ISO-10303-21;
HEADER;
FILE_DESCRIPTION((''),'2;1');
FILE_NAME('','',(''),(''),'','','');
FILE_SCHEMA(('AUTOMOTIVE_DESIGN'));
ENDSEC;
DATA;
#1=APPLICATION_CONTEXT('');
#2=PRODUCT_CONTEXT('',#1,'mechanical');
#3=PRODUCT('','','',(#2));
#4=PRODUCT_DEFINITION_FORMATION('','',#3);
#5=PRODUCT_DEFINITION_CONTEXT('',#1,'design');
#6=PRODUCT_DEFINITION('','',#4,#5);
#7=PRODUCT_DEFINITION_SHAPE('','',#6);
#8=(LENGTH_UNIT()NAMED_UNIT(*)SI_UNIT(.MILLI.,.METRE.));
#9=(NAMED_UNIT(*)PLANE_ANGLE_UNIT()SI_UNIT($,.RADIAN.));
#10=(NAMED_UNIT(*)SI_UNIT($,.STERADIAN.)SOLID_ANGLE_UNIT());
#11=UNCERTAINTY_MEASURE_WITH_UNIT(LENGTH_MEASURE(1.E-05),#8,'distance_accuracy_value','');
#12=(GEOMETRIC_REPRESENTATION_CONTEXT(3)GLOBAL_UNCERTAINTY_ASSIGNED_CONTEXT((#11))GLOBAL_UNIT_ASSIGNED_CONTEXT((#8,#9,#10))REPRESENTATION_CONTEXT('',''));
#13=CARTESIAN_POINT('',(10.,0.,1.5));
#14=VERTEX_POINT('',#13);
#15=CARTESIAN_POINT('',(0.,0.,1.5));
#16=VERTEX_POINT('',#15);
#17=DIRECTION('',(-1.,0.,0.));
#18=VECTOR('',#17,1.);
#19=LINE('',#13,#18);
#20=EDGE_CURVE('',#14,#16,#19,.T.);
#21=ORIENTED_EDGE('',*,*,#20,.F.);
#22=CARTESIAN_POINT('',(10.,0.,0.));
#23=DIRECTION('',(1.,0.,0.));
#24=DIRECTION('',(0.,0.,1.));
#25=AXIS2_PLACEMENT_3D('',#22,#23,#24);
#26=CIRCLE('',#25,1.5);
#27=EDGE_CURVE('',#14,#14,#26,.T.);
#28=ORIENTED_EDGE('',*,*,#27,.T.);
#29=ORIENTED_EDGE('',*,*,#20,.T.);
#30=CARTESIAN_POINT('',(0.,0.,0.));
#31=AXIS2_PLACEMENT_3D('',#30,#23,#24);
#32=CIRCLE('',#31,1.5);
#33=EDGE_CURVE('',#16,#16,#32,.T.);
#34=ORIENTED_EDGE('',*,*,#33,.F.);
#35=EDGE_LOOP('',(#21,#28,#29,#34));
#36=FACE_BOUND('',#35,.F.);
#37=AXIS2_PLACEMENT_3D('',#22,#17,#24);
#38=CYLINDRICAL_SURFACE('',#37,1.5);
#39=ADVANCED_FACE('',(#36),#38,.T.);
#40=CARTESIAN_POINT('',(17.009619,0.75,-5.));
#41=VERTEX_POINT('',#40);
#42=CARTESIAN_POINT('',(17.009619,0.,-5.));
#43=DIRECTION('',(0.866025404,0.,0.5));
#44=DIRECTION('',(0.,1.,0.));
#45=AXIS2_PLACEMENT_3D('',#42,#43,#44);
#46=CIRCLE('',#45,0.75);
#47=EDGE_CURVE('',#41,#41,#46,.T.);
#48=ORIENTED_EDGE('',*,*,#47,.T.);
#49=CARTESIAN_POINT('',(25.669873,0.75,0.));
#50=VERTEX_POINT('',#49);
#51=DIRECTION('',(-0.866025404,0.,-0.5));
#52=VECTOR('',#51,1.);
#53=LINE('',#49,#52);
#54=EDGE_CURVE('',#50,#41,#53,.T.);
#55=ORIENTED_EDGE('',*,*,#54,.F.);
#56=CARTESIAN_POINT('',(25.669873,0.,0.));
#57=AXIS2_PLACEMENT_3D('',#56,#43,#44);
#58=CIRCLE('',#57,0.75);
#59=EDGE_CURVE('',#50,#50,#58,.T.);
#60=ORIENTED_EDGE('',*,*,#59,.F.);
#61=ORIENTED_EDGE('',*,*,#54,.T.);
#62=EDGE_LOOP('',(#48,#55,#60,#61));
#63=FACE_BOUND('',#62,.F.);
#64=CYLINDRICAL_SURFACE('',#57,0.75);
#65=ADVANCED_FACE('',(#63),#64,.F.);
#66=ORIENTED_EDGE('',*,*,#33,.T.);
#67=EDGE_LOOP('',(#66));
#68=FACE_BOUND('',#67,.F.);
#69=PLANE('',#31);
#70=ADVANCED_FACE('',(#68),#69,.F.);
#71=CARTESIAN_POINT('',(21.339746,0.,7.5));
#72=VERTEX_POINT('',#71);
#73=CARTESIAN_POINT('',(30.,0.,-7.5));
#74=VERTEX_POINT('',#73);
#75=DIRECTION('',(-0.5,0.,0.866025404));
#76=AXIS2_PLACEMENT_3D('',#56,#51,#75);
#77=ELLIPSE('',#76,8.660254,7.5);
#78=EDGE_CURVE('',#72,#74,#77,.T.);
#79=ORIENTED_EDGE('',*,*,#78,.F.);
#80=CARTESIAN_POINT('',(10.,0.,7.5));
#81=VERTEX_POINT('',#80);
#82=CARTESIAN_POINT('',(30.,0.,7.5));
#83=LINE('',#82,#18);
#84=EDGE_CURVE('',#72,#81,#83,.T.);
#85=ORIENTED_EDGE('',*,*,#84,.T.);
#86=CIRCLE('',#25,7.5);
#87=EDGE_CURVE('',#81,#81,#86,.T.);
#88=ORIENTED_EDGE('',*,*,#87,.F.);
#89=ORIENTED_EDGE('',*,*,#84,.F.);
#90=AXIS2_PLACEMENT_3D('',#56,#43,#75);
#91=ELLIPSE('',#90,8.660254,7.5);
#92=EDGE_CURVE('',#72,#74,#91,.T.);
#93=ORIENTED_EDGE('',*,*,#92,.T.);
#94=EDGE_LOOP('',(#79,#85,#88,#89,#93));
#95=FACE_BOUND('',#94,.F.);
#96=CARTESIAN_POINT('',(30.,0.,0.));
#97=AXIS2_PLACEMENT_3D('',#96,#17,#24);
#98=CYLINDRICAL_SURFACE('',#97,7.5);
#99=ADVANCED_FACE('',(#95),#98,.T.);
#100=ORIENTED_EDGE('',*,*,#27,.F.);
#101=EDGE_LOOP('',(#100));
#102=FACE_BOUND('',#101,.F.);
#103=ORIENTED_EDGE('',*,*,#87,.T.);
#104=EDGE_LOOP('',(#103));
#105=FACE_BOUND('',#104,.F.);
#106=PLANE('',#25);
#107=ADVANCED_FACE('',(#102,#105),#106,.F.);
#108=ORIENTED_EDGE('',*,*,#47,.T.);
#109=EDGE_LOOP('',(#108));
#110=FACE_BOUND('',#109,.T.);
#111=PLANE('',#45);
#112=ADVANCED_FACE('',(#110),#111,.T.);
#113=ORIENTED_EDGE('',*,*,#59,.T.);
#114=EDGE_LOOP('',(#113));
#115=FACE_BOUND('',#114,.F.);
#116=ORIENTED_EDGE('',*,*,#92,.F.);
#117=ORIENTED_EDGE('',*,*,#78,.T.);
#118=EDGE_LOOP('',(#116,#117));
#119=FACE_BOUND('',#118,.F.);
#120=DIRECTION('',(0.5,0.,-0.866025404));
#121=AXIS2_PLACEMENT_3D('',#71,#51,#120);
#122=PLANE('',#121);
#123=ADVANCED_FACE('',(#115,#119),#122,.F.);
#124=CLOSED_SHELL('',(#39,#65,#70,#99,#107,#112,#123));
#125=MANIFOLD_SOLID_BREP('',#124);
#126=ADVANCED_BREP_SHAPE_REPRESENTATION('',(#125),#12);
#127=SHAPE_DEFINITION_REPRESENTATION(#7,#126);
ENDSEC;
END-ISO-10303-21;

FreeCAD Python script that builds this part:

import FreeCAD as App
import Part
import Sketcher
Q = App.Units.Quantity


def add_polygon(sketch, points):
    """Adds a closed chain of lines whose ends are joined by coincident constraints."""
    first, n = sketch.GeometryCount, len(points)
    for a, b in zip(points, points[1:] + points[:1]):
        sketch.addGeometry(Part.LineSegment(App.Vector(*a, 0), App.Vector(*b, 0)), False)
    for i in range(n):
        sketch.addConstraint(Sketcher.Constraint("Coincident", first + i, 2, first + (i + 1) % n, 1))

doc = App.newDocument("Part")
body = doc.addObject("PartDesign::Body", "Body")

# Sketch on XZ plane
sketch1 = doc.addObject("Sketcher::SketchObject", "Sketch")
body.addObject(sketch1)
sketch1.AttachmentSupport = (doc.XZ_Plane, [""])
sketch1.MapMode = "FlatFace"
add_polygon(sketch1, [(30, 7.5), (10, 7.5), (10, 1.5), (0, 1.5), (0, 0), (30, 0)])  # lines 0-5
sketch1.addConstraint([
    Sketcher.Constraint("Horizontal", 0),
    Sketcher.Constraint("Vertical", 1),
    Sketcher.Constraint("Horizontal", 2),
    Sketcher.Constraint("Vertical", 3),
    Sketcher.Constraint("Horizontal", 4),
    Sketcher.Constraint("Vertical", 5),
    Sketcher.Constraint("Coincident", 3, 2, -1, 1),
    Sketcher.Constraint("DistanceX", 0, 2, 0, 1, 20.0),
    Sketcher.Constraint("DistanceX", 2, 2, 2, 1, 10.0),
    Sketcher.Constraint("DistanceY", 1, 2, 1, 1, 6.0),
    Sketcher.Constraint("DistanceY", 3, 2, 3, 1, 1.5),
])
revolution = doc.addObject("PartDesign::Revolution", "Revolution")
body.addObject(revolution)
revolution.Profile = sketch1
revolution.ReferenceAxis = (sketch1, ["H_Axis"])
revolution.Angle = 360

# Sketch on XZ plane
sketch2 = doc.addObject("Sketcher::SketchObject", "Sketch001")
body.addObject(sketch2)
sketch2.AttachmentSupport = (doc.XZ_Plane, [""])
sketch2.MapMode = "FlatFace"
add_polygon(sketch2, [(21.339746, 7.5), (30, -7.5), (30, 7.5)])  # lines 0-2
sketch2.addConstraint([
    Sketcher.Constraint("Vertical", 1),
    Sketcher.Constraint("Horizontal", 2),
    Sketcher.Constraint("DistanceY", 1, 1, 1, 2, 15.0),
    Sketcher.Constraint("Angle", 0, Q("-60 deg")),
    Sketcher.Constraint("DistanceX", -1, 1, 0, 2, 30.0),
    Sketcher.Constraint("DistanceY", 0, 2, -1, 1, 7.5),
])
pocket1 = doc.addObject("PartDesign::Pocket", "Pocket")
body.addObject(pocket1)
pocket1.Profile = sketch2
pocket1.Type = "ThroughAll"
pocket1.Midplane = True

# Sketch on an angled plane
sketch3 = doc.addObject("Sketcher::SketchObject", "Sketch002")
body.addObject(sketch3)
sketch3.Placement = App.Placement(App.Vector(19.252405, 0, 11.115381), App.Rotation(App.Vector(0, 1, 0), App.Vector(-0.5, 0, 0.866025404), App.Vector(0.866025404, 0, 0.5), "ZXY"))
sketch3.addGeometry(Part.Circle(App.Vector(0, -12.834936, 0), App.Vector(0, 0, 1), 0.75), False)
sketch3.addConstraint([
    Sketcher.Constraint("PointOnObject", 0, 3, -2),
    Sketcher.Constraint("Diameter", 0, 1.5),
    Sketcher.Constraint("DistanceY", 0, 3, -1, 1, 12.834936),
])
pocket2 = doc.addObject("PartDesign::Pocket", "Pocket001")
body.addObject(pocket2)
pocket2.Profile = sketch3
pocket2.Length = 10

doc.recompute()
